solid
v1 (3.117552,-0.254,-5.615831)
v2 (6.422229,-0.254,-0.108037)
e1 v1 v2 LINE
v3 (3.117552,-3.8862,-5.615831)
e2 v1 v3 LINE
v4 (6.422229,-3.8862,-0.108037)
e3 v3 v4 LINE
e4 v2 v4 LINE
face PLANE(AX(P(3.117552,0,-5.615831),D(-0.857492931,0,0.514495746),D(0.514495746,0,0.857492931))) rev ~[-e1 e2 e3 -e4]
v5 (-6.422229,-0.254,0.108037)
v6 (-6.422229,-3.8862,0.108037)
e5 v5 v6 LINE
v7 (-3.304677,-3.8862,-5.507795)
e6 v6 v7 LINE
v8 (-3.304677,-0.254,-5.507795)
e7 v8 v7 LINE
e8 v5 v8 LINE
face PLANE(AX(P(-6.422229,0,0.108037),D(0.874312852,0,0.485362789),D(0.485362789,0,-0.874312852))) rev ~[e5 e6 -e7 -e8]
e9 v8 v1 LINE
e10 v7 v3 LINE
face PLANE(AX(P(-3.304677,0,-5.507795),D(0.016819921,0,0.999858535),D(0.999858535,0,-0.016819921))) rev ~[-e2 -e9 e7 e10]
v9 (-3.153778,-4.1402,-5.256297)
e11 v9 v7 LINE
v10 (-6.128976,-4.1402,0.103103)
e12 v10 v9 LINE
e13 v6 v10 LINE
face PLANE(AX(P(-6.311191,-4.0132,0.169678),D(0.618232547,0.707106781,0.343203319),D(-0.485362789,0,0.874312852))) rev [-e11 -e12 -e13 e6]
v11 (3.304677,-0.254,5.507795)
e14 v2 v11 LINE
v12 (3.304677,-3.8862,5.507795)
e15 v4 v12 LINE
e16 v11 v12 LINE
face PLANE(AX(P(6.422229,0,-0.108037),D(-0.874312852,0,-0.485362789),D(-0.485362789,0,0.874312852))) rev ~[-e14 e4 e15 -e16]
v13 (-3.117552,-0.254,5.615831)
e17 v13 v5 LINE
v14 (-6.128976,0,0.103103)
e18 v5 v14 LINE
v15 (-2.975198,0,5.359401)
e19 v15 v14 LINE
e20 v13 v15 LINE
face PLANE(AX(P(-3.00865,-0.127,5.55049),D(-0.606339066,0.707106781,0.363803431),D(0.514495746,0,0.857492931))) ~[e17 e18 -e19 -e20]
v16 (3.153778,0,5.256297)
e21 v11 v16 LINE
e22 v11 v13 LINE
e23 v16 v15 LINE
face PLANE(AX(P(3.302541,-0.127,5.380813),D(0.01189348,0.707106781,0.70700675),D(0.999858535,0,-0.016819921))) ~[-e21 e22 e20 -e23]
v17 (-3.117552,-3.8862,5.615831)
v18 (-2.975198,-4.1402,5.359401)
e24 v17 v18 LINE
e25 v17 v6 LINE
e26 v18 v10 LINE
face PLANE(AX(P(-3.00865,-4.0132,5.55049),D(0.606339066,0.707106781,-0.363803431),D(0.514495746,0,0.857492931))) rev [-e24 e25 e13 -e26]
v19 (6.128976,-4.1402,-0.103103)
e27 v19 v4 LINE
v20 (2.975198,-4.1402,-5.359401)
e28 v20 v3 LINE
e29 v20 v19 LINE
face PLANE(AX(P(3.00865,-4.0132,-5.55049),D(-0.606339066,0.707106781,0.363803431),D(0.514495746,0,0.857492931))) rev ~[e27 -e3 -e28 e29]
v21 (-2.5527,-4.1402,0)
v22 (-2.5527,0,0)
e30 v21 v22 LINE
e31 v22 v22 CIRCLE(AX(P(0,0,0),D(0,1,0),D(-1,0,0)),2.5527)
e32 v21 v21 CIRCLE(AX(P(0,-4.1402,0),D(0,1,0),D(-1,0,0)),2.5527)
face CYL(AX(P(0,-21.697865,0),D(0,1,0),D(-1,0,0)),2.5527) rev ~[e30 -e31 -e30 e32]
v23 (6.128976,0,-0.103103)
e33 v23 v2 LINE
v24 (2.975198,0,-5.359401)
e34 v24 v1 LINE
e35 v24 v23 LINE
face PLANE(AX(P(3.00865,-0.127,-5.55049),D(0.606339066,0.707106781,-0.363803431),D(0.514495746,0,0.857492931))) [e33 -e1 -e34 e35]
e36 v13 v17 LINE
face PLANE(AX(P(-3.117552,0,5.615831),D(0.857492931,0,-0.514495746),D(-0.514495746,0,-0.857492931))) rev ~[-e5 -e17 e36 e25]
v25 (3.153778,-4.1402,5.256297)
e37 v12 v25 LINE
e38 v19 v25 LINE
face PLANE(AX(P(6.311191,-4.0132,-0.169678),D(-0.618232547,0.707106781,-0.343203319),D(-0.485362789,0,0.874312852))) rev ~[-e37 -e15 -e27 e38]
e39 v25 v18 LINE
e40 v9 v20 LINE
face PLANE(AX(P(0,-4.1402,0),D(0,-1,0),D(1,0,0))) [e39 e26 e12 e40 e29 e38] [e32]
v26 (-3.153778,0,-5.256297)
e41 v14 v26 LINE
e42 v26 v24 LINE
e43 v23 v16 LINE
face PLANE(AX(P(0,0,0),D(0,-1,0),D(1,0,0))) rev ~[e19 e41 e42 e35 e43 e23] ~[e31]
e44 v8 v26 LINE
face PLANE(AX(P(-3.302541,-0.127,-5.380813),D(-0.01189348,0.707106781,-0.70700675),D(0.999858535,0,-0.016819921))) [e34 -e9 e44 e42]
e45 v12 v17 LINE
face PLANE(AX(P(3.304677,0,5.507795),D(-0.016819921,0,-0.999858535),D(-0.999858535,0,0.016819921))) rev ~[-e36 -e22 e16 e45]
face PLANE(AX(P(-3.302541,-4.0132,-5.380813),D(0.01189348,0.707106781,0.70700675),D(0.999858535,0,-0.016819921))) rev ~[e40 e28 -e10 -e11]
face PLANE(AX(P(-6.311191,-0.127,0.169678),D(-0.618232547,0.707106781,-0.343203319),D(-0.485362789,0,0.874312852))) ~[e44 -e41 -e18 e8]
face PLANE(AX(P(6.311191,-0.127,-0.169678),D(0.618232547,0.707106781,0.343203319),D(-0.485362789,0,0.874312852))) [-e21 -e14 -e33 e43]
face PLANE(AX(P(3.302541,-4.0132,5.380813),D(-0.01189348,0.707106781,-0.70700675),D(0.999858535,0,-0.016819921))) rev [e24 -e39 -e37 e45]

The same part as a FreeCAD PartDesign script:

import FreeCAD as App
import Part
import Sketcher
from FreeCAD import Vector
Q = App.Units.Quantity


def edges_at(feature, points):
    """Names of the edges that pass closest to the given points."""
    edges = feature.Shape.Edges
    near = lambda p: min(range(len(edges)), key=lambda i: edges[i].distToShape(Part.Vertex(*p))[0])
    return sorted({f"Edge{near(p) + 1}" for p in points})

doc = App.newDocument("Part")
body = doc.addObject("PartDesign::Body", "Body")

sketch1 = doc.addObject("Sketcher::SketchObject", "Sketch")
body.addObject(sketch1)
sketch1.AttachmentSupport = (doc.XZ_Plane, [""])
sketch1.MapMode = "FlatFace"
sketch1.addGeometry([
    Part.LineSegment(Vector(-3.117552, 5.615831, 0), Vector(-6.422229, 0.108037, 0)),
    Part.LineSegment(Vector(-6.422229, 0.108037, 0), Vector(-3.304677, -5.507795, 0)),
    Part.LineSegment(Vector(-3.304677, -5.507795, 0), Vector(3.117552, -5.615831, 0)),
    Part.LineSegment(Vector(3.117552, -5.615831, 0), Vector(6.422229, -0.108037, 0)),
    Part.LineSegment(Vector(6.422229, -0.108037, 0), Vector(3.304677, 5.507795, 0)),
    Part.LineSegment(Vector(3.304677, 5.507795, 0), Vector(-3.117552, 5.615831, 0)),
], False)
sketch1.addConstraint([
    Sketcher.Constraint("Coincident", 0, 2, 1, 1),
    Sketcher.Constraint("Coincident", 1, 2, 2, 1),
    Sketcher.Constraint("Coincident", 2, 2, 3, 1),
    Sketcher.Constraint("Coincident", 3, 2, 4, 1),
    Sketcher.Constraint("Coincident", 4, 2, 5, 1),
    Sketcher.Constraint("Coincident", 5, 2, 0, 1),
    Sketcher.Constraint("Symmetric", 0, 2, 3, 2, -1, 1),
    Sketcher.Constraint("Symmetric", 1, 2, 4, 2, -1, 1),
    Sketcher.Constraint("Symmetric", 2, 2, 5, 2, -1, 1),
    Sketcher.Constraint("Equal", 0, 1),
    Sketcher.Constraint("Equal", 1, 2),
    Sketcher.Constraint("DistanceX", 0, 2, -1, 1, Q("6.422229 mm")),
    Sketcher.Constraint("DistanceX", -1, 1, 2, 2, Q("3.117552 mm")),
    Sketcher.Constraint("DistanceY", 2, 2, -1, 1, Q("5.615831 mm")),
    Sketcher.Constraint("DistanceX", 0, 2, 1, 2, Q("3.117552 mm")),
])
pad1 = doc.addObject("PartDesign::Pad", "Pad")
body.addObject(pad1)
pad1.Profile = sketch1
pad1.Length = Q("0.163 in")

sketch2 = doc.addObject("Sketcher::SketchObject", "Sketch001")
body.addObject(sketch2)
sketch2.AttachmentSupport = (doc.XZ_Plane, [""])
sketch2.MapMode = "FlatFace"
sketch2.AttachmentOffset = App.Placement(Vector(0, 0, 0.163 * 25.4), App.Rotation())
sketch2.addGeometry(Part.Circle(Vector(0, 0, 0), Vector(0, 0, 1), 2.5527), False)
sketch2.addConstraint([
    Sketcher.Constraint("Coincident", 0, 3, -1, 1),
    Sketcher.Constraint("Diameter", 0, Q("0.201 in")),
])
doc.recompute()
hole = doc.addObject("PartDesign::Hole", "Hole")
body.addObject(hole)
hole.Profile = sketch2
hole.ThreadType = "None"
hole.Diameter = Q("0.201 in")
hole.DepthType = "ThroughAll"
doc.recompute()

chamfer = doc.addObject("PartDesign::Chamfer", "Chamfer")
body.addObject(chamfer)
chamfer.Base = (hole, edges_at(hole, [
    (-4.77, -4.14, 2.862),
    (0.094, -4.14, 5.562),
    (4.863, -4.14, 2.7),
    (4.77, -4.14, -2.862),
    (-0.094, -4.14, -5.562),
    (-4.863, -4.14, -2.7),
    (-4.863, 0, -2.7),
    (-4.77, 0, 2.862),
    (0.094, 0, 5.562),
    (4.863, 0, 2.7),
    (4.77, 0, -2.862),
    (-0.094, 0, -5.562),
]))
chamfer.Size = Q("0.01 in")

doc.recompute()
